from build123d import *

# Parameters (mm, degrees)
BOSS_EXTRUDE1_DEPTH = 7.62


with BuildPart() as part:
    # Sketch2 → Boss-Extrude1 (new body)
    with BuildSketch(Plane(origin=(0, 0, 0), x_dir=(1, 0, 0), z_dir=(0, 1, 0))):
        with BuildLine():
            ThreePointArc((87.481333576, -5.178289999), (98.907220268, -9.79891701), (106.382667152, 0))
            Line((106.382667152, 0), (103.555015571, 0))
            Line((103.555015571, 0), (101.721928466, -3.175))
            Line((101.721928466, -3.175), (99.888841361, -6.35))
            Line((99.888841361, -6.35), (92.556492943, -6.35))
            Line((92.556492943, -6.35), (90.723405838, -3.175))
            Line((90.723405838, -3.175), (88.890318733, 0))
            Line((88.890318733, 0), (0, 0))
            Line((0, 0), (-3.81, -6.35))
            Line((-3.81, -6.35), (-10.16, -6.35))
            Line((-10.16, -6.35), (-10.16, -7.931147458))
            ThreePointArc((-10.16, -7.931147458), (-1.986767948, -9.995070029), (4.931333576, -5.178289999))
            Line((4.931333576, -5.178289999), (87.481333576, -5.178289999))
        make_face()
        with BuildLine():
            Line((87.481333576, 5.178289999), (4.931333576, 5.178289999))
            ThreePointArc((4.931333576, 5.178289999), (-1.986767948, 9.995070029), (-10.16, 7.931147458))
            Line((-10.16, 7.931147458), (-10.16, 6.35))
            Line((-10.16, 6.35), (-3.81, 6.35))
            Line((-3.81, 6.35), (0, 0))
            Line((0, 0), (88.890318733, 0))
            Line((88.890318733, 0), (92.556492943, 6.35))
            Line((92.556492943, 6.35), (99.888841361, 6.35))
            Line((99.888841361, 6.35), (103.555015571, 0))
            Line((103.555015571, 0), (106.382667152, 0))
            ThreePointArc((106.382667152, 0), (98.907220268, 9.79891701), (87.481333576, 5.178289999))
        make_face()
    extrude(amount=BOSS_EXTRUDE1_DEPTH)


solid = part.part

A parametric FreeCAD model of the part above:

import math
import FreeCAD as App
import Part
import Sketcher

V = App.Vector
Q = App.Units.Quantity

doc = App.newDocument("Part")
body = doc.addObject("PartDesign::Body", "Body")

# Sketch on XZ plane
sketch1 = body.newObject("Sketcher::SketchObject", "Sketch")
sketch1.AttachmentSupport = (doc.getObject("XZ_Plane"), [""])
sketch1.MapMode = "FlatFace"
sketch1.addGeometry([
    Part.ArcOfCircle(Part.Circle(V(96.222667, 0, 0), V(0, 0, 1), 10.16), math.radians(0), math.radians(149.357868)),  # 0
    Part.ArcOfCircle(Part.Circle(V(96.222667, 0, 0), V(0, 0, 1), 10.16), math.radians(-149.357868), math.radians(0)),  # 1
    Part.LineSegment(V(87.481334, -5.17829, 0), V(4.931334, -5.17829, 0)),  # 2
    Part.ArcOfCircle(Part.Circle(V(-3.81, 0, 0), V(0, 0, 1), 10.16), math.radians(-128.682187), math.radians(-30.642132)),  # 3
    Part.LineSegment(V(-10.16, -7.931147, 0), V(-10.16, -6.35, 0)),  # 4
    Part.LineSegment(V(-10.16, -6.35, 0), V(-3.81, -6.35, 0)),  # 5
    Part.LineSegment(V(-3.81, -6.35, 0), V(0, 0, 0)),  # 6
    Part.LineSegment(V(0, 0, 0), V(-3.81, 6.35, 0)),  # 7
    Part.LineSegment(V(-3.81, 6.35, 0), V(-10.16, 6.35, 0)),  # 8
    Part.LineSegment(V(-10.16, 6.35, 0), V(-10.16, 7.931147, 0)),  # 9
    Part.ArcOfCircle(Part.Circle(V(-3.81, 0, 0), V(0, 0, 1), 10.16), math.radians(30.642132), math.radians(128.682187)),  # 10
    Part.LineSegment(V(4.931334, 5.17829, 0), V(87.481334, 5.17829, 0)),  # 11
    Part.LineSegment(V(103.555016, 0, 0), V(99.888841, 6.35, 0)),  # 12
    Part.LineSegment(V(99.888841, 6.35, 0), V(92.556493, 6.35, 0)),  # 13
    Part.LineSegment(V(92.556493, 6.35, 0), V(88.890319, 0, 0)),  # 14
    Part.LineSegment(V(88.890319, 0, 0), V(92.556493, -6.35, 0)),  # 15
    Part.LineSegment(V(92.556493, -6.35, 0), V(99.888841, -6.35, 0)),  # 16
    Part.LineSegment(V(99.888841, -6.35, 0), V(103.555016, 0, 0)),  # 17
], False)
sketch1.addConstraint([
    Sketcher.Constraint("Tangent", 0, 1, 1, 2),
    Sketcher.Constraint("Coincident", 1, 1, 2, 1),
    Sketcher.Constraint("Coincident", 2, 2, 3, 2),
    Sketcher.Constraint("Coincident", 3, 1, 4, 1),
    Sketcher.Constraint("Coincident", 4, 2, 5, 1),
    Sketcher.Constraint("Coincident", 5, 2, 6, 1),
    Sketcher.Constraint("Coincident", 6, 2, 7, 1),
    Sketcher.Constraint("Coincident", 7, 2, 8, 1),
    Sketcher.Constraint("Coincident", 8, 2, 9, 1),
    Sketcher.Constraint("Coincident", 9, 2, 10, 2),
    Sketcher.Constraint("Coincident", 10, 1, 11, 1),
    Sketcher.Constraint("Coincident", 11, 2, 0, 2),
    Sketcher.Constraint("Coincident", 12, 2, 13, 1),
    Sketcher.Constraint("Coincident", 13, 2, 14, 1),
    Sketcher.Constraint("Coincident", 14, 2, 15, 1),
    Sketcher.Constraint("Coincident", 15, 2, 16, 1),
    Sketcher.Constraint("Coincident", 16, 2, 17, 1),
    Sketcher.Constraint("Coincident", 17, 2, 12, 1),
    Sketcher.Constraint("Horizontal", 2),
    Sketcher.Constraint("Vertical", 4),
    Sketcher.Constraint("Horizontal", 5),
    Sketcher.Constraint("Horizontal", 8),
    Sketcher.Constraint("Vertical", 9),
    Sketcher.Constraint("Horizontal", 11),
    Sketcher.Constraint("Horizontal", 13),
    Sketcher.Constraint("Horizontal", 16),
    Sketcher.Constraint("Coincident", 6, 2, -1, 1),
    Sketcher.Constraint("Coincident", 10, 3, 3, 3),
    Sketcher.Constraint("Equal", 0, 1),
    Sketcher.Constraint("Equal", 1, 3),
    Sketcher.Constraint("Equal", 3, 10),
    Sketcher.Constraint("Symmetric", 5, 2, 7, 2, -1),
    Sketcher.Constraint("Symmetric", 3, 1, 9, 2, -1),
    Sketcher.Constraint("Symmetric", 1, 1, 11, 2, -1),
    Sketcher.Constraint("Symmetric", 13, 2, 15, 2, -1),
    Sketcher.Constraint("PointOnObject", 0, 1, -1),
    Sketcher.Constraint("PointOnObject", 14, 2, -1),
    Sketcher.Constraint("PointOnObject", 17, 2, -1),
    Sketcher.Constraint("Parallel", 12, 15),
    Sketcher.Constraint("Parallel", 14, 17),
    Sketcher.Constraint("Horizontal", 8, 2, 12, 2),
    Sketcher.Constraint("Vertical", 10, 3, 5, 2),
    Sketcher.Constraint("Radius", 0, Q("0.4 in")),
    Sketcher.Constraint("Angle", 12, Q("120 deg")),
    Sketcher.Constraint("DistanceX", 2, 2, 2, 1, Q("3.25 in")),
    Sketcher.Constraint("DistanceX", 5, 1, 5, 2, Q("0.25 in")),
    Sketcher.Constraint("DistanceX", 3, 1, -1, 1, Q("0.4 in")),
    Sketcher.Constraint("DistanceY", 5, 2, 7, 2, Q("0.5 in")),
    Sketcher.Constraint("DistanceX", 13, 2, 13, 1, Q("7.332348 mm")),
    Sketcher.Constraint("DistanceY", 1, 1, -1, 1, Q("5.17829 mm")),
    Sketcher.Constraint("DistanceX", -1, 1, 12, 2, Q("99.888841 mm")),
])
pad1 = body.newObject("PartDesign::Pad", "Pad")
pad1.Profile = sketch1
pad1.Length = Q("0.3 in")
pad1.Reversed = True

doc.recompute()
